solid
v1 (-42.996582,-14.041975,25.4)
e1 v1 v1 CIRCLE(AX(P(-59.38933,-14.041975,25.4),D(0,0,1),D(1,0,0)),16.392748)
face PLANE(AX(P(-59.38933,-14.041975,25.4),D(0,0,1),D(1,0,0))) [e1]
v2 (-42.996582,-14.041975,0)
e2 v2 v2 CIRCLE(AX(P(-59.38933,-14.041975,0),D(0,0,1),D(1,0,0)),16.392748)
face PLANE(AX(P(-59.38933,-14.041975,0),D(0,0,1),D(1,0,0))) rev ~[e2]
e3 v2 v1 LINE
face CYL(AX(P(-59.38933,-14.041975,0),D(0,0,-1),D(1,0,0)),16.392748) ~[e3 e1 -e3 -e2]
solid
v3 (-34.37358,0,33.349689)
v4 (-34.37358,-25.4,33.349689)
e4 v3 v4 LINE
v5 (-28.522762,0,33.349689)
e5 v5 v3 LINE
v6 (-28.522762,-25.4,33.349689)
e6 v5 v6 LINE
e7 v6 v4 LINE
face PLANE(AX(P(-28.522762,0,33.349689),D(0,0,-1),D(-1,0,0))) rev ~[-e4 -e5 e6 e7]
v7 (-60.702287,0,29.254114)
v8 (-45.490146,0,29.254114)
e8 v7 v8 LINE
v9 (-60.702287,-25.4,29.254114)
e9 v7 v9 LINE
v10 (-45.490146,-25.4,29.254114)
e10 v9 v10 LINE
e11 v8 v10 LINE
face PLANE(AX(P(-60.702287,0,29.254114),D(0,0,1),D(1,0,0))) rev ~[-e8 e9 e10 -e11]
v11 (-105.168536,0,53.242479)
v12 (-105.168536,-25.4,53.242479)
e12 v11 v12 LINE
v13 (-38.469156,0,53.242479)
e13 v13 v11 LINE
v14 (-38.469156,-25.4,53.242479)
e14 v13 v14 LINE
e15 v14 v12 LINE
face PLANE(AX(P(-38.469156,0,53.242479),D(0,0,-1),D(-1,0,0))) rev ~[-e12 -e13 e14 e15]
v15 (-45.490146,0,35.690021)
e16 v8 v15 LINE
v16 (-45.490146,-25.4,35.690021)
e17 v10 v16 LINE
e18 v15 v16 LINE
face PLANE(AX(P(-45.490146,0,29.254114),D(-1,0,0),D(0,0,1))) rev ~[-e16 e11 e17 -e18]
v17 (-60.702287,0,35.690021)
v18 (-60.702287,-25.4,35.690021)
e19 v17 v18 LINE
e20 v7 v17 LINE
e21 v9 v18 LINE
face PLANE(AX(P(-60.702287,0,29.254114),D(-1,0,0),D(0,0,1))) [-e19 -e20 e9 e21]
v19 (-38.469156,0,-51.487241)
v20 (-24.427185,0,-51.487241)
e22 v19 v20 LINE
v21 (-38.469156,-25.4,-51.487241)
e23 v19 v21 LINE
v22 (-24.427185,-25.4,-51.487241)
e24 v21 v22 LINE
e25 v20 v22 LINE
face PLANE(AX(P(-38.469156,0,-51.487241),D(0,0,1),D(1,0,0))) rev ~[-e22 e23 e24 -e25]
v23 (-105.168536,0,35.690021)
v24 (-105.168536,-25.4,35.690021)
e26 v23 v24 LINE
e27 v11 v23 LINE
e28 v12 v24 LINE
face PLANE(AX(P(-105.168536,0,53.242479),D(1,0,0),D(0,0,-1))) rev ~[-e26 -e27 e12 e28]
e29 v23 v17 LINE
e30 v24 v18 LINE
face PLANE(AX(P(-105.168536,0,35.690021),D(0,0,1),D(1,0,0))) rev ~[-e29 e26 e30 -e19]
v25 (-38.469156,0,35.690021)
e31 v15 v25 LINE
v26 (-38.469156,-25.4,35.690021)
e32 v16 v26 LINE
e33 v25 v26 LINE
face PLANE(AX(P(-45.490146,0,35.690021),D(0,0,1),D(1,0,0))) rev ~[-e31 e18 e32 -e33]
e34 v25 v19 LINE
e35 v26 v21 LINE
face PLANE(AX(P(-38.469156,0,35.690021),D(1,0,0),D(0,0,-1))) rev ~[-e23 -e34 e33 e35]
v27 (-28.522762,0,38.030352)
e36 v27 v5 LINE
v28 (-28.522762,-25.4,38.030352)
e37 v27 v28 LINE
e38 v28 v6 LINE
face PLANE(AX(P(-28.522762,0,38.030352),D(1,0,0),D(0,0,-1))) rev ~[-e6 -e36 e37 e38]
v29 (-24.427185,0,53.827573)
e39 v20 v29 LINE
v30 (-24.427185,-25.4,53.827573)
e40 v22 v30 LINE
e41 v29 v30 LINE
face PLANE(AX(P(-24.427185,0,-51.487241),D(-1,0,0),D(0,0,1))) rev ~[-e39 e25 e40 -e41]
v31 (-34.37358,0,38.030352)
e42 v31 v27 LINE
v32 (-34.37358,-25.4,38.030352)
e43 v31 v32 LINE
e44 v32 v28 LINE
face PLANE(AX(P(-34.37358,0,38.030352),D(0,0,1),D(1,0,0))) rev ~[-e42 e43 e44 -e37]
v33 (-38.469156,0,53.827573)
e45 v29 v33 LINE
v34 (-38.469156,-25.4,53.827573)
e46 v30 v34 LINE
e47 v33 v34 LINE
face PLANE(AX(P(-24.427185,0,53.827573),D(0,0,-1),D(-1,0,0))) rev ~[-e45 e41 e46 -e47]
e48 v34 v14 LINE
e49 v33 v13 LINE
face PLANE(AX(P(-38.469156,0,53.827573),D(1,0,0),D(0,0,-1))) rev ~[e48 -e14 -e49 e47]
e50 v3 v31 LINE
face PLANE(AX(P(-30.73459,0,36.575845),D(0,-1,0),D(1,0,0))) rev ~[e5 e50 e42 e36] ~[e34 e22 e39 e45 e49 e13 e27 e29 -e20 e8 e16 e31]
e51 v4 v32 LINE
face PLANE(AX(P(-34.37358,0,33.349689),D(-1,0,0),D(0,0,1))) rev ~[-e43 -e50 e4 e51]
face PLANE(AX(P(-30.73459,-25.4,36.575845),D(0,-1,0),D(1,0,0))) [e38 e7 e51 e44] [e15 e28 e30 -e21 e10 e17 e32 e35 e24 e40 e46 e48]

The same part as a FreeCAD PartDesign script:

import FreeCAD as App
import Part
import Sketcher
from FreeCAD import Vector
Q = App.Units.Quantity


def add_polygon(sketch, points):
    """Adds a closed chain of lines whose ends are joined by coincident constraints."""
    first, n = sketch.GeometryCount, len(points)
    for a, b in zip(points, points[1:] + points[:1]):
        sketch.addGeometry(Part.LineSegment(App.Vector(*a, 0), App.Vector(*b, 0)), False)
    for i in range(n):
        sketch.addConstraint(Sketcher.Constraint("Coincident", first + i, 2, first + (i + 1) % n, 1))

doc = App.newDocument("Part")
body = doc.addObject("PartDesign::Body", "Body")

# Sketch on XZ plane
sketch1 = doc.addObject("Sketcher::SketchObject", "Sketch")
body.addObject(sketch1)
sketch1.AttachmentSupport = (doc.XZ_Plane, [""])
sketch1.MapMode = "FlatFace"
add_polygon(sketch1, [(-24.427185, 53.827573), (-38.469156, 53.827573), (-38.469156, 53.242479), (-105.168536, 53.242479), (-105.168536, 35.690021), (-60.702287, 35.690021), (-60.702287, 29.254114), (-45.490146, 29.254114), (-45.490146, 35.690021), (-38.469156, 35.690021), (-38.469156, -51.487241), (-24.427185, -51.487241)])  # lines 0-11
add_polygon(sketch1, [(-34.37358, 33.349689), (-34.37358, 38.030352), (-28.522762, 38.030352), (-28.522762, 33.349689)])  # lines 12-15
sketch1.addConstraint(Sketcher.Constraint("Horizontal", 0))
sketch1.addConstraint(Sketcher.Constraint("Vertical", 1))
sketch1.addConstraint(Sketcher.Constraint("Horizontal", 2))
sketch1.addConstraint(Sketcher.Constraint("Vertical", 3))
sketch1.addConstraint(Sketcher.Constraint("Horizontal", 4))
sketch1.addConstraint(Sketcher.Constraint("Vertical", 5))
sketch1.addConstraint(Sketcher.Constraint("Horizontal", 6))
sketch1.addConstraint(Sketcher.Constraint("Vertical", 7))
sketch1.addConstraint(Sketcher.Constraint("Horizontal", 8))
sketch1.addConstraint(Sketcher.Constraint("Vertical", 9))
sketch1.addConstraint(Sketcher.Constraint("Horizontal", 10))
sketch1.addConstraint(Sketcher.Constraint("Vertical", 11))
sketch1.addConstraint(Sketcher.Constraint("Vertical", 12))
sketch1.addConstraint(Sketcher.Constraint("Horizontal", 13))
sketch1.addConstraint(Sketcher.Constraint("Vertical", 14))
sketch1.addConstraint(Sketcher.Constraint("Horizontal", 15))
sketch1.addConstraint(Sketcher.Constraint("Horizontal", 4, 2, 7, 2))
sketch1.addConstraint(Sketcher.Constraint("Vertical", 1, 2, 8, 2))
sketch1.addConstraint(Sketcher.Constraint("DistanceX", 10, 2, -1, 1, Q("0.9617002 in")))
sketch1.addConstraint(Sketcher.Constraint("DistanceX", 0, 2, 0, 1, Q("14.041971 mm")))
sketch1.addConstraint(Sketcher.Constraint("DistanceX", 2, 2, 2, 1, Q("66.69938 mm")))
sketch1.addConstraint(Sketcher.Constraint("DistanceX", 4, 1, 4, 2, Q("44.46625 mm")))
sketch1.addConstraint(Sketcher.Constraint("DistanceX", 6, 1, 6, 2, Q("15.212141 mm")))
sketch1.addConstraint(Sketcher.Constraint("DistanceX", 13, 1, 13, 2, Q("5.850818 mm")))
sketch1.addConstraint(Sketcher.Constraint("DistanceY", 9, 2, 9, 1, Q("87.177262 mm")))
sketch1.addConstraint(Sketcher.Constraint("DistanceY", 1, 2, 1, 1, Q("0.585094 mm")))
sketch1.addConstraint(Sketcher.Constraint("DistanceY", 3, 2, 3, 1, Q("17.552458 mm")))
sketch1.addConstraint(Sketcher.Constraint("DistanceY", 5, 2, 5, 1, Q("6.435907 mm")))
sketch1.addConstraint(Sketcher.Constraint("DistanceY", 12, 1, 12, 2, Q("4.680663 mm")))
sketch1.addConstraint(Sketcher.Constraint("DistanceY", -1, 1, 1, 2, Q("53.242479 mm")))
sketch1.addConstraint(Sketcher.Constraint("DistanceX", 12, 2, -1, 1, Q("34.37358 mm")))
sketch1.addConstraint(Sketcher.Constraint("DistanceY", -1, 1, 14, 2, Q("33.349689 mm")))
pad1 = doc.addObject("PartDesign::Pad", "Pad")
body.addObject(pad1)
pad1.Profile = sketch1
pad1.Length = Q("1 in")
body2 = doc.addObject("PartDesign::Body", "Body001")

# Sketch on XY plane
sketch2 = doc.addObject("Sketcher::SketchObject", "Sketch001")
body2.addObject(sketch2)
sketch2.AttachmentSupport = (doc.getObject("XY_Plane001"), [""])
sketch2.MapMode = "FlatFace"
sketch2.addGeometry(Part.Circle(Vector(-59.38933, -14.041975, 0), Vector(0, 0, 1), 16.392748), False)
sketch2.addConstraint(Sketcher.Constraint("Diameter", 0, Q("32.785497 mm")))
sketch2.addConstraint(Sketcher.Constraint("DistanceX", 0, 3, -1, 1, Q("59.38933 mm")))
sketch2.addConstraint(Sketcher.Constraint("DistanceY", 0, 3, -1, 1, Q("14.041975 mm")))
pad2 = doc.addObject("PartDesign::Pad", "Pad001")
body2.addObject(pad2)
pad2.Profile = sketch2
pad2.Length = Q("1 in")

doc.recompute()
